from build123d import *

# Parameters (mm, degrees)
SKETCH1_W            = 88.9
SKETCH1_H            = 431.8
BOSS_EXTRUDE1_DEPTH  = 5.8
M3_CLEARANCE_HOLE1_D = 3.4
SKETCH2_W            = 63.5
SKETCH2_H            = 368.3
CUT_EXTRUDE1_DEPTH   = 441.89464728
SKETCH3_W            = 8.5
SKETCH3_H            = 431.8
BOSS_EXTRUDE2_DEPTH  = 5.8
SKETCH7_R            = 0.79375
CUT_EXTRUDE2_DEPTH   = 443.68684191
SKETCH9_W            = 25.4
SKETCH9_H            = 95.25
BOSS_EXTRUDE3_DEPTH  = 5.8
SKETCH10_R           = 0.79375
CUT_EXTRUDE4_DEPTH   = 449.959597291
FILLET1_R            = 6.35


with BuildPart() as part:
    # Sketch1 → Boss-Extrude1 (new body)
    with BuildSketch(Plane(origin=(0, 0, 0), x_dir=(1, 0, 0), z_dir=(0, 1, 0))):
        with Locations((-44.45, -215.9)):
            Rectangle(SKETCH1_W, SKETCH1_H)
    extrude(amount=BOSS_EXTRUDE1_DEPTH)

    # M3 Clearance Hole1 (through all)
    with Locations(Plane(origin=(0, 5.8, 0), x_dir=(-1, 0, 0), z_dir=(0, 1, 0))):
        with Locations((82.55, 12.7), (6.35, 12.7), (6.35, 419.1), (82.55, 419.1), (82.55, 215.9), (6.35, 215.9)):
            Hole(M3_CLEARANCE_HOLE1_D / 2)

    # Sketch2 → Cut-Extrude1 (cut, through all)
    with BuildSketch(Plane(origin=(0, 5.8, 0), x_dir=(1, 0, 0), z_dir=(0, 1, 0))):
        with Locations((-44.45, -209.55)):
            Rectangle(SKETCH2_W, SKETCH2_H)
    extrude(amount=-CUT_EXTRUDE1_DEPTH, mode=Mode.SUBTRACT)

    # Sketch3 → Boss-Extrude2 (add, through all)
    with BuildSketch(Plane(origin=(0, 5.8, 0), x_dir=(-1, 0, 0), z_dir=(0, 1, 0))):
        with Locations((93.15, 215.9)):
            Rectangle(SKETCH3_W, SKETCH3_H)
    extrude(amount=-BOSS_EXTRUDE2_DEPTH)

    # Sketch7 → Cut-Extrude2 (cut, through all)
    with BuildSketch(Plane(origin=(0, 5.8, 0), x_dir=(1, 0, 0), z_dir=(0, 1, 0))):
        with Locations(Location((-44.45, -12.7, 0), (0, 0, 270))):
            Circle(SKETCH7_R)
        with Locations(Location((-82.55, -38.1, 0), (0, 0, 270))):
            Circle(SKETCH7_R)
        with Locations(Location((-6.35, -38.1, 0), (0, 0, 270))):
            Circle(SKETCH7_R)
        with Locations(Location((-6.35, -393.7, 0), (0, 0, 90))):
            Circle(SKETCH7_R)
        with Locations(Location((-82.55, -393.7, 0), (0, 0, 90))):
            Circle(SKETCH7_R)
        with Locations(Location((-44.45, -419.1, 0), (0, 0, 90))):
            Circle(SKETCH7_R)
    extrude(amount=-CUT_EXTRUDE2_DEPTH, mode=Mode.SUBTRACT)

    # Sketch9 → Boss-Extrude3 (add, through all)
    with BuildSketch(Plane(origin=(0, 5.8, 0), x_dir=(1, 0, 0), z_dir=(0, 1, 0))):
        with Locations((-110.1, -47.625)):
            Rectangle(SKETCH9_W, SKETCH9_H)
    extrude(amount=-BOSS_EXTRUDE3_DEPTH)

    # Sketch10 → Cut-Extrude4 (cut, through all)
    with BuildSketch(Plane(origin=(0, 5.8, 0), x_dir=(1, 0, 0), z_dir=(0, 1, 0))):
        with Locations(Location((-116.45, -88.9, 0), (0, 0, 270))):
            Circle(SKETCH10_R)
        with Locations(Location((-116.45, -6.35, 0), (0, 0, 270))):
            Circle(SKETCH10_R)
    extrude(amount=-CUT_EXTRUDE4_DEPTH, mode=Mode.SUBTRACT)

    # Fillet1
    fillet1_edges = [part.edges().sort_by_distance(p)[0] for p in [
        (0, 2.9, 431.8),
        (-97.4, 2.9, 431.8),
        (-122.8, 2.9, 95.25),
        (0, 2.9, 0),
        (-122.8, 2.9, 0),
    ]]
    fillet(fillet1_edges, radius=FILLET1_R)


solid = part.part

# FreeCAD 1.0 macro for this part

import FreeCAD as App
import Part
import Sketcher
from FreeCAD import Vector
Q = App.Units.Quantity


def edges_at(feature, points):
    """Names of the edges that pass closest to the given points."""
    edges = feature.Shape.Edges
    near = lambda p: min(range(len(edges)), key=lambda i: edges[i].distToShape(Part.Vertex(*p))[0])
    return sorted({f"Edge{near(p) + 1}" for p in points})


def add_polygon(sketch, points):
    """Adds a closed chain of lines whose ends are joined by coincident constraints."""
    first, n = sketch.GeometryCount, len(points)
    for a, b in zip(points, points[1:] + points[:1]):
        sketch.addGeometry(Part.LineSegment(App.Vector(*a, 0), App.Vector(*b, 0)), False)
    for i in range(n):
        sketch.addConstraint(Sketcher.Constraint("Coincident", first + i, 2, first + (i + 1) % n, 1))

doc = App.newDocument("Part")
body = doc.addObject("PartDesign::Body", "Body")

# Sketch on XZ plane
sketch1 = doc.addObject("Sketcher::SketchObject", "Sketch")
body.addObject(sketch1)
sketch1.AttachmentSupport = (doc.XZ_Plane, [""])
sketch1.MapMode = "FlatFace"
add_polygon(sketch1, [(-88.9, 0), (-88.9, 431.8), (0, 431.8), (0, 0)])  # lines 0-3
sketch1.addConstraint(Sketcher.Constraint("Vertical", 0))
sketch1.addConstraint(Sketcher.Constraint("Horizontal", 1))
sketch1.addConstraint(Sketcher.Constraint("Vertical", 2))
sketch1.addConstraint(Sketcher.Constraint("Horizontal", 3))
sketch1.addConstraint(Sketcher.Constraint("Coincident", 2, 2, -1, 1))
sketch1.addConstraint(Sketcher.Constraint("DistanceY", 0, 1, 0, 2, Q("17 in")))
sketch1.addConstraint(Sketcher.Constraint("DistanceX", 1, 1, 1, 2, Q("3.5 in")))
pad1 = doc.addObject("PartDesign::Pad", "Pad")
body.addObject(pad1)
pad1.Profile = sketch1
pad1.Length = 5.8
pad1.Reversed = True

# Sketch on XZ plane
sketch2 = doc.addObject("Sketcher::SketchObject", "Sketch001")
body.addObject(sketch2)
sketch2.AttachmentSupport = (doc.XZ_Plane, [""])
sketch2.MapMode = "FlatFace"
sketch2.AttachmentOffset = App.Placement(Vector(0, 0, -5.8), App.Rotation())
sketch2.addGeometry(Part.Circle(Vector(-82.55, 12.7, 0), Vector(0, 0, 1), 1.7), False)
sketch2.addGeometry(Part.Circle(Vector(-6.35, 12.7, 0), Vector(0, 0, 1), 1.7), False)
sketch2.addGeometry(Part.Circle(Vector(-6.35, 419.1, 0), Vector(0, 0, 1), 1.7), False)
sketch2.addGeometry(Part.Circle(Vector(-82.55, 419.1, 0), Vector(0, 0, 1), 1.7), False)
sketch2.addGeometry(Part.Circle(Vector(-82.55, 215.9, 0), Vector(0, 0, 1), 1.7), False)
sketch2.addGeometry(Part.Circle(Vector(-6.35, 215.9, 0), Vector(0, 0, 1), 1.7), False)
sketch2.addConstraint(Sketcher.Constraint("Equal", 0, 1))
sketch2.addConstraint(Sketcher.Constraint("Equal", 1, 2))
sketch2.addConstraint(Sketcher.Constraint("Equal", 2, 3))
sketch2.addConstraint(Sketcher.Constraint("Equal", 3, 4))
sketch2.addConstraint(Sketcher.Constraint("Equal", 4, 5))
sketch2.addConstraint(Sketcher.Constraint("Horizontal", 0, 3, 1, 3))
sketch2.addConstraint(Sketcher.Constraint("Horizontal", 2, 3, 3, 3))
sketch2.addConstraint(Sketcher.Constraint("Horizontal", 4, 3, 5, 3))
sketch2.addConstraint(Sketcher.Constraint("Vertical", 1, 3, 2, 3))
sketch2.addConstraint(Sketcher.Constraint("Vertical", 0, 3, 3, 3))
sketch2.addConstraint(Sketcher.Constraint("Vertical", 3, 3, 4, 3))
sketch2.addConstraint(Sketcher.Constraint("Vertical", 2, 3, 5, 3))
sketch2.addConstraint(Sketcher.Constraint("DistanceX", 0, 3, 1, 3, Q("3 in")))
sketch2.addConstraint(Sketcher.Constraint("DistanceY", 1, 3, 2, 3, Q("16 in")))
sketch2.addConstraint(Sketcher.Constraint("DistanceY", 0, 3, 4, 3, Q("8 in")))
sketch2.addConstraint(Sketcher.Constraint("DistanceY", -1, 1, 0, 3, Q("0.5 in")))
sketch2.addConstraint(Sketcher.Constraint("Diameter", 0, Q("3.4 mm")))
sketch2.addConstraint(Sketcher.Constraint("DistanceX", 0, 3, -1, 1, Q("3.25 in")))
doc.recompute()
hole = doc.addObject("PartDesign::Hole", "Hole")
body.addObject(hole)
hole.Profile = sketch2
hole.ThreadType = "None"
hole.Diameter = 3.4
hole.DepthType = "ThroughAll"
hole.Reversed = True

# Sketch on XZ plane
sketch3 = doc.addObject("Sketcher::SketchObject", "Sketch002")
body.addObject(sketch3)
sketch3.AttachmentSupport = (doc.XZ_Plane, [""])
sketch3.MapMode = "FlatFace"
sketch3.AttachmentOffset = App.Placement(Vector(0, 0, -5.8), App.Rotation())
add_polygon(sketch3, [(-76.2, 25.4), (-76.2, 393.7), (-12.7, 393.7), (-12.7, 25.4)])  # lines 0-3
sketch3.addConstraint(Sketcher.Constraint("Vertical", 0))
sketch3.addConstraint(Sketcher.Constraint("Horizontal", 1))
sketch3.addConstraint(Sketcher.Constraint("Vertical", 2))
sketch3.addConstraint(Sketcher.Constraint("Horizontal", 3))
sketch3.addConstraint(Sketcher.Constraint("DistanceX", 1, 1, 1, 2, Q("2.5 in")))
sketch3.addConstraint(Sketcher.Constraint("DistanceY", 0, 1, 0, 2, Q("14.5 in")))
sketch3.addConstraint(Sketcher.Constraint("DistanceX", 0, 2, -1, 1, Q("3 in")))
sketch3.addConstraint(Sketcher.Constraint("DistanceY", -1, 1, 2, 2, Q("1 in")))
pocket1 = doc.addObject("PartDesign::Pocket", "Pocket")
body.addObject(pocket1)
pocket1.Profile = sketch3
pocket1.Type = "ThroughAll"
pocket1.Reversed = True

# Sketch on XZ plane
sketch4 = doc.addObject("Sketcher::SketchObject", "Sketch003")
body.addObject(sketch4)
sketch4.AttachmentSupport = (doc.XZ_Plane, [""])
sketch4.MapMode = "FlatFace"
sketch4.AttachmentOffset = App.Placement(Vector(0, 0, -5.8), App.Rotation())
add_polygon(sketch4, [(-88.9, 431.8), (-88.9, 0), (-97.4, 0), (-97.4, 431.8)])  # lines 0-3
sketch4.addConstraint(Sketcher.Constraint("Vertical", 0))
sketch4.addConstraint(Sketcher.Constraint("Horizontal", 1))
sketch4.addConstraint(Sketcher.Constraint("Vertical", 2))
sketch4.addConstraint(Sketcher.Constraint("Horizontal", 3))
sketch4.addConstraint(Sketcher.Constraint("PointOnObject", 0, 2, -1))
sketch4.addConstraint(Sketcher.Constraint("DistanceY", 0, 2, 0, 1, Q("17 in")))
sketch4.addConstraint(Sketcher.Constraint("DistanceX", 0, 2, -1, 1, Q("3.5 in")))
sketch4.addConstraint(Sketcher.Constraint("DistanceX", 1, 2, 1, 1, Q("8.5 mm")))
pad2 = doc.addObject("PartDesign::Pad", "Pad001")
body.addObject(pad2)
pad2.Profile = sketch4
pad2.Length = 5.8

# Sketch on XZ plane
sketch5 = doc.addObject("Sketcher::SketchObject", "Sketch004")
body.addObject(sketch5)
sketch5.AttachmentSupport = (doc.XZ_Plane, [""])
sketch5.MapMode = "FlatFace"
sketch5.AttachmentOffset = App.Placement(Vector(0, 0, -5.8), App.Rotation())
sketch5.addGeometry(Part.Circle(Vector(-44.45, 12.7, 0), Vector(0, 0, 1), 0.79375), False)
sketch5.addGeometry(Part.Circle(Vector(-82.55, 38.1, 0), Vector(0, 0, 1), 0.79375), False)
sketch5.addGeometry(Part.Circle(Vector(-6.35, 38.1, 0), Vector(0, 0, 1), 0.79375), False)
sketch5.addGeometry(Part.Circle(Vector(-6.35, 393.7, 0), Vector(0, 0, 1), 0.79375), False)
sketch5.addGeometry(Part.Circle(Vector(-82.55, 393.7, 0), Vector(0, 0, 1), 0.79375), False)
sketch5.addGeometry(Part.Circle(Vector(-44.45, 419.1, 0), Vector(0, 0, 1), 0.79375), False)
sketch5.addConstraint(Sketcher.Constraint("Equal", 0, 1))
sketch5.addConstraint(Sketcher.Constraint("Equal", 1, 2))
sketch5.addConstraint(Sketcher.Constraint("Equal", 2, 3))
sketch5.addConstraint(Sketcher.Constraint("Equal", 3, 4))
sketch5.addConstraint(Sketcher.Constraint("Equal", 4, 5))
sketch5.addConstraint(Sketcher.Constraint("Horizontal", 1, 3, 2, 3))
sketch5.addConstraint(Sketcher.Constraint("Horizontal", 3, 3, 4, 3))
sketch5.addConstraint(Sketcher.Constraint("Vertical", 2, 3, 3, 3))
sketch5.addConstraint(Sketcher.Constraint("Vertical", 1, 3, 4, 3))
sketch5.addConstraint(Sketcher.Constraint("Vertical", 0, 3, 5, 3))
sketch5.addConstraint(Sketcher.Constraint("Diameter", 0, Q("0.0625 in")))
sketch5.addConstraint(Sketcher.Constraint("DistanceY", 0, 3, 1, 3, Q("1 in")))
sketch5.addConstraint(Sketcher.Constraint("DistanceX", 1, 3, 2, 3, Q("3 in")))
sketch5.addConstraint(Sketcher.Constraint("DistanceY", 2, 3, 3, 3, Q("14 in")))
sketch5.addConstraint(Sketcher.Constraint("DistanceY", 4, 3, 5, 3, Q("1 in")))
sketch5.addConstraint(Sketcher.Constraint("DistanceY", -1, 1, 0, 3, Q("0.5 in")))
sketch5.addConstraint(Sketcher.Constraint("DistanceX", 1, 3, 0, 3, Q("1.5 in")))
sketch5.addConstraint(Sketcher.Constraint("DistanceX", 0, 3, -1, 1, Q("1.75 in")))
pocket2 = doc.addObject("PartDesign::Pocket", "Pocket001")
body.addObject(pocket2)
pocket2.Profile = sketch5
pocket2.Type = "ThroughAll"
pocket2.Reversed = True

# Sketch on XZ plane
sketch6 = doc.addObject("Sketcher::SketchObject", "Sketch005")
body.addObject(sketch6)
sketch6.AttachmentSupport = (doc.XZ_Plane, [""])
sketch6.MapMode = "FlatFace"
sketch6.AttachmentOffset = App.Placement(Vector(0, 0, -5.8), App.Rotation())
add_polygon(sketch6, [(-122.8, 0), (-122.8, 95.25), (-97.4, 95.25), (-97.4, 0)])  # lines 0-3
sketch6.addConstraint(Sketcher.Constraint("Vertical", 0))
sketch6.addConstraint(Sketcher.Constraint("Horizontal", 1))
sketch6.addConstraint(Sketcher.Constraint("Vertical", 2))
sketch6.addConstraint(Sketcher.Constraint("Horizontal", 3))
sketch6.addConstraint(Sketcher.Constraint("PointOnObject", 2, 2, -1))
sketch6.addConstraint(Sketcher.Constraint("DistanceX", 1, 1, 1, 2, Q("1 in")))
sketch6.addConstraint(Sketcher.Constraint("DistanceY", 0, 1, 0, 2, Q("3.75 in")))
sketch6.addConstraint(Sketcher.Constraint("DistanceX", 0, 2, -1, 1, Q("122.8 mm")))
pad3 = doc.addObject("PartDesign::Pad", "Pad002")
body.addObject(pad3)
pad3.Profile = sketch6
pad3.Length = 5.8

# Sketch on XZ plane
sketch7 = doc.addObject("Sketcher::SketchObject", "Sketch006")
body.addObject(sketch7)
sketch7.AttachmentSupport = (doc.XZ_Plane, [""])
sketch7.MapMode = "FlatFace"
sketch7.AttachmentOffset = App.Placement(Vector(0, 0, -5.8), App.Rotation())
sketch7.addGeometry(Part.Circle(Vector(-116.45, 88.9, 0), Vector(0, 0, 1), 0.79375), False)
sketch7.addGeometry(Part.Circle(Vector(-116.45, 6.35, 0), Vector(0, 0, 1), 0.79375), False)
sketch7.addConstraint(Sketcher.Constraint("Equal", 0, 1))
sketch7.addConstraint(Sketcher.Constraint("Vertical", 0, 3, 1, 3))
sketch7.addConstraint(Sketcher.Constraint("Diameter", 0, Q("0.0625 in")))
sketch7.addConstraint(Sketcher.Constraint("DistanceY", -1, 1, 0, 3, Q("3.5 in")))
sketch7.addConstraint(Sketcher.Constraint("DistanceY", -1, 1, 1, 3, Q("0.25 in")))
sketch7.addConstraint(Sketcher.Constraint("DistanceX", 0, 3, -1, 1, Q("116.45 mm")))
pocket3 = doc.addObject("PartDesign::Pocket", "Pocket002")
body.addObject(pocket3)
pocket3.Profile = sketch7
pocket3.Type = "ThroughAll"
pocket3.Reversed = True
doc.recompute()

fillet = doc.addObject("PartDesign::Fillet", "Fillet")
body.addObject(fillet)
fillet.Base = (pocket3, edges_at(pocket3, [
    (0, 2.9, 431.8),
    (-97.4, 2.9, 431.8),
    (-122.8, 2.9, 95.25),
    (0, 2.9, 0),
    (-122.8, 2.9, 0),
]))
fillet.Radius = Q("0.25 in")

doc.recompute()
